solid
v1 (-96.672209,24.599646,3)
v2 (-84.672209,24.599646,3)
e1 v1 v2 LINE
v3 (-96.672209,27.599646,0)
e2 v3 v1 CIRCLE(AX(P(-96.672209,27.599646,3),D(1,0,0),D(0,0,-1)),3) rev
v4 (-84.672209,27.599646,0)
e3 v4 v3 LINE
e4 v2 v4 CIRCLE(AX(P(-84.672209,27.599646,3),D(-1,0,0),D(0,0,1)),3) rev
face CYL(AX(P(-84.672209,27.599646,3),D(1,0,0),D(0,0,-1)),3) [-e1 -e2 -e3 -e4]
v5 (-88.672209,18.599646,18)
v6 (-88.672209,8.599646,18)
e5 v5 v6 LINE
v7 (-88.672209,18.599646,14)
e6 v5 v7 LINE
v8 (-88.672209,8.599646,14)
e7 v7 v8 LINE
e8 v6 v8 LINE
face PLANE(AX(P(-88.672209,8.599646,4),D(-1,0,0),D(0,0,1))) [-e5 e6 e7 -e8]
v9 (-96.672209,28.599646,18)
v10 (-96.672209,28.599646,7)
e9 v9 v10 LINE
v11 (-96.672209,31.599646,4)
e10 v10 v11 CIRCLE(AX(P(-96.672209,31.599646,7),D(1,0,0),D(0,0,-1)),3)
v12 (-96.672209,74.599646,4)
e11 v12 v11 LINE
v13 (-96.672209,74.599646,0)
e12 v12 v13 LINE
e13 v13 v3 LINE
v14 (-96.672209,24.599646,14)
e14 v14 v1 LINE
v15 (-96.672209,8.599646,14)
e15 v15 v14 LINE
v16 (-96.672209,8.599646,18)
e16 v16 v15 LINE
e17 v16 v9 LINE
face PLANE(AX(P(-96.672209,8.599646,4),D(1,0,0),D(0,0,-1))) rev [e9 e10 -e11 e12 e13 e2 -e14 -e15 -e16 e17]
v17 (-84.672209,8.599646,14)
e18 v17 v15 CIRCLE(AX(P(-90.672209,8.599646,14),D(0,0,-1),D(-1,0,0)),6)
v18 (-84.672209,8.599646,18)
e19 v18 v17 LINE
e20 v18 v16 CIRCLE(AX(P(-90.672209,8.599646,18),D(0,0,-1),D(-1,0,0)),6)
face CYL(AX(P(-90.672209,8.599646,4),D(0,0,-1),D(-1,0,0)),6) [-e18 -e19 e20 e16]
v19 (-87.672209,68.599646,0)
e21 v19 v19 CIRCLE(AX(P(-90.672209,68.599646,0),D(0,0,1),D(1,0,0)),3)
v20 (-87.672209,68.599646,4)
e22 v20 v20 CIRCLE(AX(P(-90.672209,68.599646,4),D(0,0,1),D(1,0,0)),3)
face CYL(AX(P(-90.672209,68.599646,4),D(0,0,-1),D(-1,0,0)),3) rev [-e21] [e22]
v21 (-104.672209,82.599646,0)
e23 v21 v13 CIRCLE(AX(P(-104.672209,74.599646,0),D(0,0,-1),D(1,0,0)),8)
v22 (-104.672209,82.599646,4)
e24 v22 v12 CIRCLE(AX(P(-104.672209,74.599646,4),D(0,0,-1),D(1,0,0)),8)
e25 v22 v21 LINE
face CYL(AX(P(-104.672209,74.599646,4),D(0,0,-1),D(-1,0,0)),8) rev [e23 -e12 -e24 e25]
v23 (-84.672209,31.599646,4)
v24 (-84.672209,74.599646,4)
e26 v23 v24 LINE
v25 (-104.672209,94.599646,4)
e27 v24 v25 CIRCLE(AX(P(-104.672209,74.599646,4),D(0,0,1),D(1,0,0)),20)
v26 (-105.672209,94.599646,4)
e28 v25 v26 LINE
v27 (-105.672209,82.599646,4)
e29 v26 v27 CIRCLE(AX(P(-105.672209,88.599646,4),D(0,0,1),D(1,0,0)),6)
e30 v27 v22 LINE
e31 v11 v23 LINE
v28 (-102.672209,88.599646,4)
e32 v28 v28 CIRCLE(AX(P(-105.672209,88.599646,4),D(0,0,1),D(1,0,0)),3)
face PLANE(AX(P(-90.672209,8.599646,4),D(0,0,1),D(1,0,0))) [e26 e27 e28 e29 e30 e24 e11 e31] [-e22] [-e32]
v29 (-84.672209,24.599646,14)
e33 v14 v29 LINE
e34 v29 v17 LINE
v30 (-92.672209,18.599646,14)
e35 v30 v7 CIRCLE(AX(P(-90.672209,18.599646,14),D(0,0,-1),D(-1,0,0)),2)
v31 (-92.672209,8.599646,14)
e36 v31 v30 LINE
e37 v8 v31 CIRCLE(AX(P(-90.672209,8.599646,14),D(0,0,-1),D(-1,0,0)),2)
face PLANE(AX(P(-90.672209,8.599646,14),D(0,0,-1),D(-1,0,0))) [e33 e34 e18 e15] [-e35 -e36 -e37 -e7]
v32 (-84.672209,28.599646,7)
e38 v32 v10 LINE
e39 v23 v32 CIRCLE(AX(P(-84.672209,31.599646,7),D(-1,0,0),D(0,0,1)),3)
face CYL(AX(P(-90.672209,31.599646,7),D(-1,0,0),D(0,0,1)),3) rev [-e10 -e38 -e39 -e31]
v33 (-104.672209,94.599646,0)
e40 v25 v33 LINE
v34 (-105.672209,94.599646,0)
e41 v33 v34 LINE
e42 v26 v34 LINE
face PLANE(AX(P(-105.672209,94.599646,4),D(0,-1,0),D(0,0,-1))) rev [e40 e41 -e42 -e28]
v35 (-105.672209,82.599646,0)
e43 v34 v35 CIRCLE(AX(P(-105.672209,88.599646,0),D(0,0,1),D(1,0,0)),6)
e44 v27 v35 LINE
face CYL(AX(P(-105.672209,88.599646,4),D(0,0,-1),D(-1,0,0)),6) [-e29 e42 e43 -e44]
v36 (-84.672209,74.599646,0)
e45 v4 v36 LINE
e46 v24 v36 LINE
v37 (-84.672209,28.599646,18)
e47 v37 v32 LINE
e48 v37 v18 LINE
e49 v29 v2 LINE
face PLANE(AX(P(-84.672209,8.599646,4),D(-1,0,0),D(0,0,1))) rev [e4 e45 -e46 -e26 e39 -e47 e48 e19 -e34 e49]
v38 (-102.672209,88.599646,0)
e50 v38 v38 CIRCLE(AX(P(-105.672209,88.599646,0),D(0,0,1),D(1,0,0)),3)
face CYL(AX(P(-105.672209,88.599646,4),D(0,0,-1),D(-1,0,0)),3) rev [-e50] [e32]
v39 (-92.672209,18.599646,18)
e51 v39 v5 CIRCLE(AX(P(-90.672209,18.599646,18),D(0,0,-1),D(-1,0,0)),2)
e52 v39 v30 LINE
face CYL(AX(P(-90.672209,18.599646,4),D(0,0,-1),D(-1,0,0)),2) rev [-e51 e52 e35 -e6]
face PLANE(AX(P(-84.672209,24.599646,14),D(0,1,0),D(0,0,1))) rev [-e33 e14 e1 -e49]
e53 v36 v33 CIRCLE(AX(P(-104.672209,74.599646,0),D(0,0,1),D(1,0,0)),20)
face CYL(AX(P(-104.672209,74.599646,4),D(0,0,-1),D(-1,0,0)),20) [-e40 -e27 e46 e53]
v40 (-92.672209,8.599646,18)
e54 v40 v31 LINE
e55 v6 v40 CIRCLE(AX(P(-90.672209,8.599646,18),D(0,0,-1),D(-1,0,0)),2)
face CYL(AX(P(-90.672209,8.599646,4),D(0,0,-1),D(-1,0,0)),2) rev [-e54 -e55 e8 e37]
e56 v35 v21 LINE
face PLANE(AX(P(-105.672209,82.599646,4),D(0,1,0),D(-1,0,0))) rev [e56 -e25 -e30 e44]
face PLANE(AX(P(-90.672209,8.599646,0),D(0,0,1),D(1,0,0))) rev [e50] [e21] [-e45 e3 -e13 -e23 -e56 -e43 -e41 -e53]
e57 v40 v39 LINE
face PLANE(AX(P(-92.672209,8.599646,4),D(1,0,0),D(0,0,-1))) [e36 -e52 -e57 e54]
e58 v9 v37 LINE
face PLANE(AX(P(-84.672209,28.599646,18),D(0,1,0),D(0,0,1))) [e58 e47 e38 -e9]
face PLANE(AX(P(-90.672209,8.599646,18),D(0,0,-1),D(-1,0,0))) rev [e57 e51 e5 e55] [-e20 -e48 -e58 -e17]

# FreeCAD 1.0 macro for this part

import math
import FreeCAD as App
import Part
import Sketcher

V = App.Vector


def edges_at(feature, points):
    """Names of the edges that pass closest to the given points."""
    edges = feature.Shape.Edges
    near = lambda p: min(range(len(edges)), key=lambda i: edges[i].distToShape(Part.Vertex(*p))[0])
    return sorted({f"Edge{near(p) + 1}" for p in points})

doc = App.newDocument("Part")
body = doc.addObject("PartDesign::Body", "Body")

# Sketch on XY plane
sketch1 = body.newObject("Sketcher::SketchObject", "Sketch")
sketch1.AttachmentSupport = (doc.getObject("XY_Plane"), [""])
sketch1.MapMode = "FlatFace"
sketch1.addGeometry(Part.LineSegment(V(-96.7, 74.6, 0), V(-96.7, 8.6, 0)), False)
sketch1.addGeometry(Part.ArcOfCircle(Part.Circle(V(-90.7, 8.6, 0), V(0, 0, 1), 6), math.radians(180), math.radians(360)), False)
sketch1.addGeometry(Part.LineSegment(V(-84.7, 8.6, 0), V(-84.7, 74.6, 0)), False)
sketch1.addGeometry(Part.ArcOfCircle(Part.Circle(V(-104.7, 74.6, 0), V(0, 0, 1), 20), math.radians(0), math.radians(90)), False)
sketch1.addGeometry(Part.LineSegment(V(-104.7, 94.6, 0), V(-105.7, 94.6, 0)), False)
sketch1.addGeometry(Part.ArcOfCircle(Part.Circle(V(-105.7, 88.6, 0), V(0, 0, 1), 6), math.radians(90), math.radians(270)), False)
sketch1.addGeometry(Part.LineSegment(V(-105.7, 82.6, 0), V(-104.7, 82.6, 0)), False)
sketch1.addGeometry(Part.ArcOfCircle(Part.Circle(V(-104.7, 74.6, 0), V(0, 0, 1), 8), math.radians(0), math.radians(90)), False)
sketch1.addGeometry(Part.LineSegment(V(-92.7, 8.6, 0), V(-92.7, 18.6, 0)), False)
sketch1.addGeometry(Part.ArcOfCircle(Part.Circle(V(-90.7, 18.6, 0), V(0, 0, 1), 2), math.radians(0), math.radians(180)), False)
sketch1.addGeometry(Part.LineSegment(V(-88.7, 18.6, 0), V(-88.7, 8.6, 0)), False)
sketch1.addGeometry(Part.ArcOfCircle(Part.Circle(V(-90.7, 8.6, 0), V(0, 0, 1), 2), math.radians(180), math.radians(360)), False)
sketch1.addGeometry(Part.Circle(V(-90.7, 68.6, 0), V(0, 0, 1), 3), False)
sketch1.addGeometry(Part.Circle(V(-105.7, 88.6, 0), V(0, 0, 1), 3), False)
sketch1.addConstraint(Sketcher.Constraint("Tangent", 0, 2, 1, 1))
sketch1.addConstraint(Sketcher.Constraint("Tangent", 1, 2, 2, 1))
sketch1.addConstraint(Sketcher.Constraint("Tangent", 2, 2, 3, 1))
sketch1.addConstraint(Sketcher.Constraint("Tangent", 3, 2, 4, 1))
sketch1.addConstraint(Sketcher.Constraint("Tangent", 4, 2, 5, 1))
sketch1.addConstraint(Sketcher.Constraint("Tangent", 5, 2, 6, 1))
sketch1.addConstraint(Sketcher.Constraint("Tangent", 6, 2, 7, 2))
sketch1.addConstraint(Sketcher.Constraint("Tangent", 7, 1, 0, 1))
sketch1.addConstraint(Sketcher.Constraint("Tangent", 8, 2, 9, 2))
sketch1.addConstraint(Sketcher.Constraint("Tangent", 9, 1, 10, 1))
sketch1.addConstraint(Sketcher.Constraint("Tangent", 10, 2, 11, 2))
sketch1.addConstraint(Sketcher.Constraint("Tangent", 11, 1, 8, 1))
sketch1.addConstraint(Sketcher.Constraint("Vertical", 0))
sketch1.addConstraint(Sketcher.Constraint("Vertical", 2))
sketch1.addConstraint(Sketcher.Constraint("Horizontal", 4))
sketch1.addConstraint(Sketcher.Constraint("Horizontal", 6))
sketch1.addConstraint(Sketcher.Constraint("Vertical", 8))
sketch1.addConstraint(Sketcher.Constraint("Vertical", 10))
sketch1.addConstraint(Sketcher.Constraint("Coincident", 7, 3, 3, 3))
sketch1.addConstraint(Sketcher.Constraint("Coincident", 11, 3, 1, 3))
sketch1.addConstraint(Sketcher.Constraint("Coincident", 13, 3, 5, 3))
sketch1.addConstraint(Sketcher.Constraint("Equal", 12, 13))
sketch1.addConstraint(Sketcher.Constraint("Vertical", 11, 3, 12, 3))
sketch1.addConstraint(Sketcher.Constraint("Diameter", 12, 6.0))
sketch1.addConstraint(Sketcher.Constraint("Radius", 1, 6.0))
sketch1.addConstraint(Sketcher.Constraint("Radius", 3, 20.0))
sketch1.addConstraint(Sketcher.Constraint("Radius", 9, 2.0))
sketch1.addConstraint(Sketcher.Constraint("DistanceX", 4, 2, 4, 1, 1.0))
sketch1.addConstraint(Sketcher.Constraint("DistanceY", 0, 2, 0, 1, 66.0))
sketch1.addConstraint(Sketcher.Constraint("DistanceY", 8, 1, 8, 2, 10.0))
sketch1.addConstraint(Sketcher.Constraint("DistanceY", 12, 3, 3, 3, 6.0))
sketch1.addConstraint(Sketcher.Constraint("DistanceX", 1, 3, -1, 1, 90.672209))
sketch1.addConstraint(Sketcher.Constraint("DistanceY", -1, 1, 1, 3, 8.599646))
pad1 = body.newObject("PartDesign::Pad", "Pad")
pad1.Profile = sketch1
pad1.Length = 4

# Sketch on XY plane
sketch2 = body.newObject("Sketcher::SketchObject", "Sketch001")
sketch2.AttachmentSupport = (doc.getObject("XY_Plane"), [""])
sketch2.MapMode = "FlatFace"
sketch2.AttachmentOffset = App.Placement(V(0, 0, 4), App.Rotation())
sketch2.addGeometry(Part.LineSegment(V(-96.7, 28.6, 0), V(-84.7, 28.6, 0)), False)
sketch2.addGeometry(Part.LineSegment(V(-84.7, 28.6, 0), V(-84.7, 8.6, 0)), False)
sketch2.addGeometry(Part.ArcOfCircle(Part.Circle(V(-90.7, 8.6, 0), V(0, 0, 1), 6), math.radians(180), math.radians(360)), False)
sketch2.addGeometry(Part.LineSegment(V(-96.7, 8.6, 0), V(-96.7, 28.6, 0)), False)
sketch2.addGeometry(Part.LineSegment(V(-88.7, 8.6, 0), V(-88.7, 18.6, 0)), False)
sketch2.addGeometry(Part.ArcOfCircle(Part.Circle(V(-90.7, 18.6, 0), V(0, 0, 1), 2), math.radians(0), math.radians(180)), False)
sketch2.addGeometry(Part.LineSegment(V(-92.7, 18.6, 0), V(-92.7, 8.6, 0)), False)
sketch2.addGeometry(Part.ArcOfCircle(Part.Circle(V(-90.7, 8.6, 0), V(0, 0, 1), 2), math.radians(180), math.radians(360)), False)
sketch2.addConstraint(Sketcher.Constraint("Coincident", 0, 2, 1, 1))
sketch2.addConstraint(Sketcher.Constraint("Tangent", 1, 2, 2, 2))
sketch2.addConstraint(Sketcher.Constraint("Tangent", 2, 1, 3, 1))
sketch2.addConstraint(Sketcher.Constraint("Coincident", 3, 2, 0, 1))
sketch2.addConstraint(Sketcher.Constraint("Tangent", 4, 2, 5, 1))
sketch2.addConstraint(Sketcher.Constraint("Tangent", 5, 2, 6, 1))
sketch2.addConstraint(Sketcher.Constraint("Tangent", 6, 2, 7, 1))
sketch2.addConstraint(Sketcher.Constraint("Tangent", 7, 2, 4, 1))
sketch2.addConstraint(Sketcher.Constraint("Horizontal", 0))
sketch2.addConstraint(Sketcher.Constraint("Vertical", 1))
sketch2.addConstraint(Sketcher.Constraint("Vertical", 3))
sketch2.addConstraint(Sketcher.Constraint("Vertical", 4))
sketch2.addConstraint(Sketcher.Constraint("Vertical", 6))
sketch2.addConstraint(Sketcher.Constraint("Coincident", 7, 3, 2, 3))
sketch2.addConstraint(Sketcher.Constraint("Radius", 2, 6.0))
sketch2.addConstraint(Sketcher.Constraint("Radius", 5, 2.0))
sketch2.addConstraint(Sketcher.Constraint("DistanceY", 1, 2, 1, 1, 20.0))
sketch2.addConstraint(Sketcher.Constraint("DistanceY", 4, 1, 4, 2, 10.0))
sketch2.addConstraint(Sketcher.Constraint("DistanceX", 2, 3, -1, 1, 90.672209))
sketch2.addConstraint(Sketcher.Constraint("DistanceY", -1, 1, 2, 3, 8.599646))
pad2 = body.newObject("PartDesign::Pad", "Pad001")
pad2.Profile = sketch2
pad2.Length = 14

# Sketch on XY plane
sketch3 = body.newObject("Sketcher::SketchObject", "Sketch002")
sketch3.AttachmentSupport = (doc.getObject("XY_Plane"), [""])
sketch3.MapMode = "FlatFace"
sketch3.addGeometry(Part.LineSegment(V(-84.7, 24.6, 0), V(-84.7, 8.6, 0)), False)
sketch3.addGeometry(Part.ArcOfCircle(Part.Circle(V(-90.7, 8.6, 0), V(0, 0, 1), 6), math.radians(180), math.radians(360)), False)
sketch3.addGeometry(Part.LineSegment(V(-96.7, 8.6, 0), V(-96.7, 24.6, 0)), False)
sketch3.addGeometry(Part.LineSegment(V(-96.7, 24.6, 0), V(-84.7, 24.6, 0)), False)
sketch3.addGeometry(Part.LineSegment(V(-88.7, 8.6, 0), V(-88.7, 18.6, 0)), False)
sketch3.addGeometry(Part.ArcOfCircle(Part.Circle(V(-90.7, 18.6, 0), V(0, 0, 1), 2), math.radians(0), math.radians(180)), False)
sketch3.addGeometry(Part.LineSegment(V(-92.7, 18.6, 0), V(-92.7, 8.6, 0)), False)
sketch3.addGeometry(Part.ArcOfCircle(Part.Circle(V(-90.7, 8.6, 0), V(0, 0, 1), 2), math.radians(180), math.radians(360)), False)
sketch3.addConstraint(Sketcher.Constraint("Tangent", 0, 2, 1, 2))
sketch3.addConstraint(Sketcher.Constraint("Tangent", 1, 1, 2, 1))
sketch3.addConstraint(Sketcher.Constraint("Coincident", 2, 2, 3, 1))
sketch3.addConstraint(Sketcher.Constraint("Coincident", 3, 2, 0, 1))
sketch3.addConstraint(Sketcher.Constraint("Tangent", 4, 2, 5, 1))
sketch3.addConstraint(Sketcher.Constraint("Tangent", 5, 2, 6, 1))
sketch3.addConstraint(Sketcher.Constraint("Tangent", 6, 2, 7, 1))
sketch3.addConstraint(Sketcher.Constraint("Tangent", 7, 2, 4, 1))
sketch3.addConstraint(Sketcher.Constraint("Vertical", 0))
sketch3.addConstraint(Sketcher.Constraint("Vertical", 2))
sketch3.addConstraint(Sketcher.Constraint("Horizontal", 3))
sketch3.addConstraint(Sketcher.Constraint("Vertical", 4))
sketch3.addConstraint(Sketcher.Constraint("Vertical", 6))
sketch3.addConstraint(Sketcher.Constraint("Coincident", 7, 3, 1, 3))
sketch3.addConstraint(Sketcher.Constraint("Radius", 1, 6.0))
sketch3.addConstraint(Sketcher.Constraint("Radius", 5, 2.0))
sketch3.addConstraint(Sketcher.Constraint("DistanceY", 0, 2, 0, 1, 16.0))
sketch3.addConstraint(Sketcher.Constraint("DistanceY", 4, 1, 4, 2, 10.0))
sketch3.addConstraint(Sketcher.Constraint("DistanceX", 1, 3, -1, 1, 90.672209))
sketch3.addConstraint(Sketcher.Constraint("DistanceY", -1, 1, 1, 3, 8.599646))
pocket1 = body.newObject("PartDesign::Pocket", "Pocket")
pocket1.Profile = sketch3
pocket1.Length = 14
pocket1.Reversed = True
doc.recompute()

fillet = body.newObject("PartDesign::Fillet", "Fillet")
fillet.Base = (pocket1, edges_at(pocket1, [(-90.672, 28.6, 4), (-90.672, 24.6, 0)]))
fillet.Radius = 3

doc.recompute()
